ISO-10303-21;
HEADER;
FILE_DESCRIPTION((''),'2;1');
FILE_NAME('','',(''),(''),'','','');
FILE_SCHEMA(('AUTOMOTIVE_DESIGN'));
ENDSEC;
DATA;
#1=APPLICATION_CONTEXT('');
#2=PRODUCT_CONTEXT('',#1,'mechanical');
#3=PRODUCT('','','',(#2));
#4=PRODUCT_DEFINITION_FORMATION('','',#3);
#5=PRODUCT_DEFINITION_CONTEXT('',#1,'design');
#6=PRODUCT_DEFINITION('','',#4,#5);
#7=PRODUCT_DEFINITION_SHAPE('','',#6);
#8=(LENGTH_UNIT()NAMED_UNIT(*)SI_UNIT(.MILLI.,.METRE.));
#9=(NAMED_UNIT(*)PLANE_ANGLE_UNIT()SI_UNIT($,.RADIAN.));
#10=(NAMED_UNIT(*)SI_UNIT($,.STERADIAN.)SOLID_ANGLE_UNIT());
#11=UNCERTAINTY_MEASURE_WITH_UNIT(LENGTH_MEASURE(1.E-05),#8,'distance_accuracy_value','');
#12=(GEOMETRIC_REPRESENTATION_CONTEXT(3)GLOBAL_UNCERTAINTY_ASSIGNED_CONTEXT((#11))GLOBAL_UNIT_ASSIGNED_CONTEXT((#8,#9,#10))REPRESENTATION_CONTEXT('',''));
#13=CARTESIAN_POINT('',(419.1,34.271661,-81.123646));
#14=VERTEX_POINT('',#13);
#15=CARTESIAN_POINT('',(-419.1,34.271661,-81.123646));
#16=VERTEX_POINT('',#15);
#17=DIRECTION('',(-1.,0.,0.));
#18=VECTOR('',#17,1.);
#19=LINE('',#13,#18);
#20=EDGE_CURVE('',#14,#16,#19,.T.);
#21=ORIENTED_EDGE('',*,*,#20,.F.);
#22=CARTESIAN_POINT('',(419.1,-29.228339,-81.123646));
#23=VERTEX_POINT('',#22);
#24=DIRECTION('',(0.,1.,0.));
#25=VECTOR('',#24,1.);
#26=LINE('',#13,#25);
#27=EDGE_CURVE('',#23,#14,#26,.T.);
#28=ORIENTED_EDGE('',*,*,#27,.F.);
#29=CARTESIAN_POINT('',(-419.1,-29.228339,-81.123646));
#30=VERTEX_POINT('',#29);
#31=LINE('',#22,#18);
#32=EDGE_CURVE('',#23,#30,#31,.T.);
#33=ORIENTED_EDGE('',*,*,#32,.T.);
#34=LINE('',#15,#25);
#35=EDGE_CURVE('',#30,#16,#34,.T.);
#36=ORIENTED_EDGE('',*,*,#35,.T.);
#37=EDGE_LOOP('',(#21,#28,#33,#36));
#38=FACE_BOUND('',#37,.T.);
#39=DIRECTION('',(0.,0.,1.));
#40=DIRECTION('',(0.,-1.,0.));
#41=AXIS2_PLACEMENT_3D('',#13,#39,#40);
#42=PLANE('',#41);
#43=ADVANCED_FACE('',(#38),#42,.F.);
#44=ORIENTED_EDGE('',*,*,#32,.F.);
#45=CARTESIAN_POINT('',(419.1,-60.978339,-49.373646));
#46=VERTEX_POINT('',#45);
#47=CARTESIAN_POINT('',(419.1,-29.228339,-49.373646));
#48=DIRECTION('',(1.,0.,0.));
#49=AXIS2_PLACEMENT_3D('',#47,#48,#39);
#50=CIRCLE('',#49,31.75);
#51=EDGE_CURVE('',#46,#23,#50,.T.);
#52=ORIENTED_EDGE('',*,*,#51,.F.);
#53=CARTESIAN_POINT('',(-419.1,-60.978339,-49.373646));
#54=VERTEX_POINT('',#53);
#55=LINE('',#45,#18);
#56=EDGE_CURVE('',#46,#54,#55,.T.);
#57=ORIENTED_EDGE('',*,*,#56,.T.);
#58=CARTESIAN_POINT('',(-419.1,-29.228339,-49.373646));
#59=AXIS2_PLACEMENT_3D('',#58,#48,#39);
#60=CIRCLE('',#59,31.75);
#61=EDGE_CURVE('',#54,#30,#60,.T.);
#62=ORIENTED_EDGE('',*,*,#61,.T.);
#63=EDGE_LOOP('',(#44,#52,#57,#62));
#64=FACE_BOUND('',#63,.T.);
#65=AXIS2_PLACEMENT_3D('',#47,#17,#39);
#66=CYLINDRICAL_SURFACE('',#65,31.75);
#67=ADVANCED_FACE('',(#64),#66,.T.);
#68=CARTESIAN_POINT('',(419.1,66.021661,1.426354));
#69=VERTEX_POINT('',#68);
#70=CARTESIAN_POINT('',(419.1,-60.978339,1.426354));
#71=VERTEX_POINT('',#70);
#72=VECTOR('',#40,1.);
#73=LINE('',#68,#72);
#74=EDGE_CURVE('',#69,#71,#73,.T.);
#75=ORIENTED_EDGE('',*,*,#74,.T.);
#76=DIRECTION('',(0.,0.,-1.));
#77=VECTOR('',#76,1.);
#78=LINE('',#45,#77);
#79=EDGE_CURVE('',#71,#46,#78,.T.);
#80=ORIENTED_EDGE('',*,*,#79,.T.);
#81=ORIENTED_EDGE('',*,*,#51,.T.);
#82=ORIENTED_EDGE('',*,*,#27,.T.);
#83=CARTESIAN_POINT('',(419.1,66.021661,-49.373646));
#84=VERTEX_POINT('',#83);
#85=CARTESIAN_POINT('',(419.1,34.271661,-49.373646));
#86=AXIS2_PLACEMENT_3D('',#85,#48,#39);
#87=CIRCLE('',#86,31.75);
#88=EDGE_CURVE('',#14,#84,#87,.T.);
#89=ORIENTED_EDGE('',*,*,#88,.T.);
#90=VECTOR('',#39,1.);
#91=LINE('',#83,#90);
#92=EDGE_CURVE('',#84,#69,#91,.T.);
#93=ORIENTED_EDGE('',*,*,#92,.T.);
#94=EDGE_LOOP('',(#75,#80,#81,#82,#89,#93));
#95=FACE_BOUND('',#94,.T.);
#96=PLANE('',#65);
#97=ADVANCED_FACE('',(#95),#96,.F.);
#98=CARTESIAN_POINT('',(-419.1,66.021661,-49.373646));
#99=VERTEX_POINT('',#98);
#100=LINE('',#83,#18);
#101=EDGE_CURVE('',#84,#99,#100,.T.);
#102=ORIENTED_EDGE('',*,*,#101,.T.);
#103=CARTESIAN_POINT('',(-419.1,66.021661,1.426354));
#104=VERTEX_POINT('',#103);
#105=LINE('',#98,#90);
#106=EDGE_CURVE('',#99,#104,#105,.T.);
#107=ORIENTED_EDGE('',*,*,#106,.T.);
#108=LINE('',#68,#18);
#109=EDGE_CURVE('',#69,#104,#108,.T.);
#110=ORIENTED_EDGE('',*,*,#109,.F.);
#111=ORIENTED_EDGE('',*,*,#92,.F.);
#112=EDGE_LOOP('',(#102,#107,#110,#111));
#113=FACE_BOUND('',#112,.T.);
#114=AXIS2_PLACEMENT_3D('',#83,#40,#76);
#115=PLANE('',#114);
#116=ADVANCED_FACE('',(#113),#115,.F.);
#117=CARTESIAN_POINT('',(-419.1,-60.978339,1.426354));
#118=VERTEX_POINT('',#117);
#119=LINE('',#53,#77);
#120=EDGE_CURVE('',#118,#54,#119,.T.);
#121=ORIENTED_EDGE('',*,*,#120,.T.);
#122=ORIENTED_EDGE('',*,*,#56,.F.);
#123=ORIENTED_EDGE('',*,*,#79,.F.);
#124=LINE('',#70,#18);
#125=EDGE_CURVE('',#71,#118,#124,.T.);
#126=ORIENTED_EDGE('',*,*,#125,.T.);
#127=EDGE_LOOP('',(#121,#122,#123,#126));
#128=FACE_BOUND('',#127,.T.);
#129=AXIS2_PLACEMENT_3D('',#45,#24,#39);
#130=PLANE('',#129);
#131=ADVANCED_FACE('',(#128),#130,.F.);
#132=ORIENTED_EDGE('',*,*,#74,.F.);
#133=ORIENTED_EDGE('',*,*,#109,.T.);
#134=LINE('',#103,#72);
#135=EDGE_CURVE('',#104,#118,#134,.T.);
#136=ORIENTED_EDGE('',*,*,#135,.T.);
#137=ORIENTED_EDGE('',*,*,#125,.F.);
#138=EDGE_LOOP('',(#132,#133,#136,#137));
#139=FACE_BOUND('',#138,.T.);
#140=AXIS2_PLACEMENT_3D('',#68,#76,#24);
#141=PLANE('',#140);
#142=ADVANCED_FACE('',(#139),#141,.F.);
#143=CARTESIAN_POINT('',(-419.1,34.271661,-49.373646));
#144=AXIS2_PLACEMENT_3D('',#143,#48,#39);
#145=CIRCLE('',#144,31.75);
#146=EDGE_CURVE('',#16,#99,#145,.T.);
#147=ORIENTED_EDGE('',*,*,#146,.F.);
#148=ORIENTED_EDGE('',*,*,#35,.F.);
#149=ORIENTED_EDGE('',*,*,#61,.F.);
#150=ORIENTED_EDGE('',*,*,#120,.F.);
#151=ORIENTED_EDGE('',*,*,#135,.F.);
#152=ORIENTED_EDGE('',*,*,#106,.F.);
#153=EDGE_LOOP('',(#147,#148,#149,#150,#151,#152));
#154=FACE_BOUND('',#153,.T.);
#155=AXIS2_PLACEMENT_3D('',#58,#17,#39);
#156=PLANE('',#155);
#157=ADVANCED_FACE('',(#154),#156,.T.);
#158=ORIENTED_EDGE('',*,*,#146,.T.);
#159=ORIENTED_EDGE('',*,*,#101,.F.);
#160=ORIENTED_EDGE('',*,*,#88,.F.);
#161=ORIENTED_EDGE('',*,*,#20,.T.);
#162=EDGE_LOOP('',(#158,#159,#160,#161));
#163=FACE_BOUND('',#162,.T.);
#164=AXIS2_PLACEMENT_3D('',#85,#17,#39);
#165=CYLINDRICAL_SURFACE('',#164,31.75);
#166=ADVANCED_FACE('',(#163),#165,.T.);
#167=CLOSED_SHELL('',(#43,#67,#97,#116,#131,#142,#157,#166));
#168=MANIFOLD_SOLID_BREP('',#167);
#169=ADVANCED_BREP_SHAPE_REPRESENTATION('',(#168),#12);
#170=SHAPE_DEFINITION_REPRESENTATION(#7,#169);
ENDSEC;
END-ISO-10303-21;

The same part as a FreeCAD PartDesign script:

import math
import FreeCAD as App
import Part
import Sketcher
Q = App.Units.Quantity

doc = App.newDocument("Part")
params = doc.addObject("Spreadsheet::Sheet", "Params")
for row, (alias, value) in enumerate([
    ("sketch1_width", "5 in"),
    ("sketch1_height", "2 in"),
    ("sketch1_radius", "1.25 in"),
    ("pad1_length", "33 in"),
], start=1):
    params.set(f"A{row}", alias)
    params.set(f"B{row}", "=" + value)
    params.setAlias(f"B{row}", alias)

body = doc.addObject("PartDesign::Body", "Body")

sketch1 = doc.addObject("Sketcher::SketchObject", "Sketch")
body.addObject(sketch1)
sketch1.AttachmentSupport = (doc.YZ_Plane, [""])
sketch1.MapMode = "FlatFace"
sketch1.addGeometry([
    Part.LineSegment(App.Vector(66, -49, 0), App.Vector(66, 1, 0)),
    Part.LineSegment(App.Vector(66, 1, 0), App.Vector(-61, 1, 0)),
    Part.LineSegment(App.Vector(-61, 1, 0), App.Vector(-61, -49, 0)),
    Part.ArcOfCircle(Part.Circle(App.Vector(-29, -49, 0), App.Vector(0, 0, 1), 32), math.radians(180), math.radians(270)),
    Part.LineSegment(App.Vector(-29, -81, 0), App.Vector(34, -81, 0)),
    Part.ArcOfCircle(Part.Circle(App.Vector(34, -49, 0), App.Vector(0, 0, 1), 32), math.radians(-90), math.radians(0)),
], False)
sketch1.addConstraint([
    Sketcher.Constraint("Coincident", 0, 2, 1, 1),
    Sketcher.Constraint("Coincident", 1, 2, 2, 1),
    Sketcher.Constraint("Tangent", 2, 2, 3, 1),
    Sketcher.Constraint("Tangent", 3, 2, 4, 1),
    Sketcher.Constraint("Tangent", 4, 2, 5, 1),
    Sketcher.Constraint("Tangent", 5, 2, 0, 1),
    Sketcher.Constraint("Vertical", 0),
    Sketcher.Constraint("Horizontal", 1),
    Sketcher.Constraint("Vertical", 2),
    Sketcher.Constraint("Horizontal", 4),
    Sketcher.Constraint("Equal", 3, 5),
    Sketcher.Constraint("DistanceX", 1, 2, 1, 1, Q("5 in")),
    Sketcher.Constraint("DistanceY", 0, 1, 0, 2, Q("2 in")),
    Sketcher.Constraint("Radius", 3, Q("1.25 in")),
    Sketcher.Constraint("DistanceX", 3, 3, -1, 1, 29.228339),
    Sketcher.Constraint("DistanceY", 3, 3, -1, 1, 49.373646),
])
sketch1.setExpression("Constraints[11]", "Params.sketch1_width")
sketch1.setExpression("Constraints[12]", "Params.sketch1_height")
sketch1.setExpression("Constraints[13]", "Params.sketch1_radius")
pad1 = doc.addObject("PartDesign::Pad", "Pad")
body.addObject(pad1)
pad1.Profile = sketch1
pad1.setExpression("Length", "Params.pad1_length")
pad1.Midplane = True

doc.recompute()
